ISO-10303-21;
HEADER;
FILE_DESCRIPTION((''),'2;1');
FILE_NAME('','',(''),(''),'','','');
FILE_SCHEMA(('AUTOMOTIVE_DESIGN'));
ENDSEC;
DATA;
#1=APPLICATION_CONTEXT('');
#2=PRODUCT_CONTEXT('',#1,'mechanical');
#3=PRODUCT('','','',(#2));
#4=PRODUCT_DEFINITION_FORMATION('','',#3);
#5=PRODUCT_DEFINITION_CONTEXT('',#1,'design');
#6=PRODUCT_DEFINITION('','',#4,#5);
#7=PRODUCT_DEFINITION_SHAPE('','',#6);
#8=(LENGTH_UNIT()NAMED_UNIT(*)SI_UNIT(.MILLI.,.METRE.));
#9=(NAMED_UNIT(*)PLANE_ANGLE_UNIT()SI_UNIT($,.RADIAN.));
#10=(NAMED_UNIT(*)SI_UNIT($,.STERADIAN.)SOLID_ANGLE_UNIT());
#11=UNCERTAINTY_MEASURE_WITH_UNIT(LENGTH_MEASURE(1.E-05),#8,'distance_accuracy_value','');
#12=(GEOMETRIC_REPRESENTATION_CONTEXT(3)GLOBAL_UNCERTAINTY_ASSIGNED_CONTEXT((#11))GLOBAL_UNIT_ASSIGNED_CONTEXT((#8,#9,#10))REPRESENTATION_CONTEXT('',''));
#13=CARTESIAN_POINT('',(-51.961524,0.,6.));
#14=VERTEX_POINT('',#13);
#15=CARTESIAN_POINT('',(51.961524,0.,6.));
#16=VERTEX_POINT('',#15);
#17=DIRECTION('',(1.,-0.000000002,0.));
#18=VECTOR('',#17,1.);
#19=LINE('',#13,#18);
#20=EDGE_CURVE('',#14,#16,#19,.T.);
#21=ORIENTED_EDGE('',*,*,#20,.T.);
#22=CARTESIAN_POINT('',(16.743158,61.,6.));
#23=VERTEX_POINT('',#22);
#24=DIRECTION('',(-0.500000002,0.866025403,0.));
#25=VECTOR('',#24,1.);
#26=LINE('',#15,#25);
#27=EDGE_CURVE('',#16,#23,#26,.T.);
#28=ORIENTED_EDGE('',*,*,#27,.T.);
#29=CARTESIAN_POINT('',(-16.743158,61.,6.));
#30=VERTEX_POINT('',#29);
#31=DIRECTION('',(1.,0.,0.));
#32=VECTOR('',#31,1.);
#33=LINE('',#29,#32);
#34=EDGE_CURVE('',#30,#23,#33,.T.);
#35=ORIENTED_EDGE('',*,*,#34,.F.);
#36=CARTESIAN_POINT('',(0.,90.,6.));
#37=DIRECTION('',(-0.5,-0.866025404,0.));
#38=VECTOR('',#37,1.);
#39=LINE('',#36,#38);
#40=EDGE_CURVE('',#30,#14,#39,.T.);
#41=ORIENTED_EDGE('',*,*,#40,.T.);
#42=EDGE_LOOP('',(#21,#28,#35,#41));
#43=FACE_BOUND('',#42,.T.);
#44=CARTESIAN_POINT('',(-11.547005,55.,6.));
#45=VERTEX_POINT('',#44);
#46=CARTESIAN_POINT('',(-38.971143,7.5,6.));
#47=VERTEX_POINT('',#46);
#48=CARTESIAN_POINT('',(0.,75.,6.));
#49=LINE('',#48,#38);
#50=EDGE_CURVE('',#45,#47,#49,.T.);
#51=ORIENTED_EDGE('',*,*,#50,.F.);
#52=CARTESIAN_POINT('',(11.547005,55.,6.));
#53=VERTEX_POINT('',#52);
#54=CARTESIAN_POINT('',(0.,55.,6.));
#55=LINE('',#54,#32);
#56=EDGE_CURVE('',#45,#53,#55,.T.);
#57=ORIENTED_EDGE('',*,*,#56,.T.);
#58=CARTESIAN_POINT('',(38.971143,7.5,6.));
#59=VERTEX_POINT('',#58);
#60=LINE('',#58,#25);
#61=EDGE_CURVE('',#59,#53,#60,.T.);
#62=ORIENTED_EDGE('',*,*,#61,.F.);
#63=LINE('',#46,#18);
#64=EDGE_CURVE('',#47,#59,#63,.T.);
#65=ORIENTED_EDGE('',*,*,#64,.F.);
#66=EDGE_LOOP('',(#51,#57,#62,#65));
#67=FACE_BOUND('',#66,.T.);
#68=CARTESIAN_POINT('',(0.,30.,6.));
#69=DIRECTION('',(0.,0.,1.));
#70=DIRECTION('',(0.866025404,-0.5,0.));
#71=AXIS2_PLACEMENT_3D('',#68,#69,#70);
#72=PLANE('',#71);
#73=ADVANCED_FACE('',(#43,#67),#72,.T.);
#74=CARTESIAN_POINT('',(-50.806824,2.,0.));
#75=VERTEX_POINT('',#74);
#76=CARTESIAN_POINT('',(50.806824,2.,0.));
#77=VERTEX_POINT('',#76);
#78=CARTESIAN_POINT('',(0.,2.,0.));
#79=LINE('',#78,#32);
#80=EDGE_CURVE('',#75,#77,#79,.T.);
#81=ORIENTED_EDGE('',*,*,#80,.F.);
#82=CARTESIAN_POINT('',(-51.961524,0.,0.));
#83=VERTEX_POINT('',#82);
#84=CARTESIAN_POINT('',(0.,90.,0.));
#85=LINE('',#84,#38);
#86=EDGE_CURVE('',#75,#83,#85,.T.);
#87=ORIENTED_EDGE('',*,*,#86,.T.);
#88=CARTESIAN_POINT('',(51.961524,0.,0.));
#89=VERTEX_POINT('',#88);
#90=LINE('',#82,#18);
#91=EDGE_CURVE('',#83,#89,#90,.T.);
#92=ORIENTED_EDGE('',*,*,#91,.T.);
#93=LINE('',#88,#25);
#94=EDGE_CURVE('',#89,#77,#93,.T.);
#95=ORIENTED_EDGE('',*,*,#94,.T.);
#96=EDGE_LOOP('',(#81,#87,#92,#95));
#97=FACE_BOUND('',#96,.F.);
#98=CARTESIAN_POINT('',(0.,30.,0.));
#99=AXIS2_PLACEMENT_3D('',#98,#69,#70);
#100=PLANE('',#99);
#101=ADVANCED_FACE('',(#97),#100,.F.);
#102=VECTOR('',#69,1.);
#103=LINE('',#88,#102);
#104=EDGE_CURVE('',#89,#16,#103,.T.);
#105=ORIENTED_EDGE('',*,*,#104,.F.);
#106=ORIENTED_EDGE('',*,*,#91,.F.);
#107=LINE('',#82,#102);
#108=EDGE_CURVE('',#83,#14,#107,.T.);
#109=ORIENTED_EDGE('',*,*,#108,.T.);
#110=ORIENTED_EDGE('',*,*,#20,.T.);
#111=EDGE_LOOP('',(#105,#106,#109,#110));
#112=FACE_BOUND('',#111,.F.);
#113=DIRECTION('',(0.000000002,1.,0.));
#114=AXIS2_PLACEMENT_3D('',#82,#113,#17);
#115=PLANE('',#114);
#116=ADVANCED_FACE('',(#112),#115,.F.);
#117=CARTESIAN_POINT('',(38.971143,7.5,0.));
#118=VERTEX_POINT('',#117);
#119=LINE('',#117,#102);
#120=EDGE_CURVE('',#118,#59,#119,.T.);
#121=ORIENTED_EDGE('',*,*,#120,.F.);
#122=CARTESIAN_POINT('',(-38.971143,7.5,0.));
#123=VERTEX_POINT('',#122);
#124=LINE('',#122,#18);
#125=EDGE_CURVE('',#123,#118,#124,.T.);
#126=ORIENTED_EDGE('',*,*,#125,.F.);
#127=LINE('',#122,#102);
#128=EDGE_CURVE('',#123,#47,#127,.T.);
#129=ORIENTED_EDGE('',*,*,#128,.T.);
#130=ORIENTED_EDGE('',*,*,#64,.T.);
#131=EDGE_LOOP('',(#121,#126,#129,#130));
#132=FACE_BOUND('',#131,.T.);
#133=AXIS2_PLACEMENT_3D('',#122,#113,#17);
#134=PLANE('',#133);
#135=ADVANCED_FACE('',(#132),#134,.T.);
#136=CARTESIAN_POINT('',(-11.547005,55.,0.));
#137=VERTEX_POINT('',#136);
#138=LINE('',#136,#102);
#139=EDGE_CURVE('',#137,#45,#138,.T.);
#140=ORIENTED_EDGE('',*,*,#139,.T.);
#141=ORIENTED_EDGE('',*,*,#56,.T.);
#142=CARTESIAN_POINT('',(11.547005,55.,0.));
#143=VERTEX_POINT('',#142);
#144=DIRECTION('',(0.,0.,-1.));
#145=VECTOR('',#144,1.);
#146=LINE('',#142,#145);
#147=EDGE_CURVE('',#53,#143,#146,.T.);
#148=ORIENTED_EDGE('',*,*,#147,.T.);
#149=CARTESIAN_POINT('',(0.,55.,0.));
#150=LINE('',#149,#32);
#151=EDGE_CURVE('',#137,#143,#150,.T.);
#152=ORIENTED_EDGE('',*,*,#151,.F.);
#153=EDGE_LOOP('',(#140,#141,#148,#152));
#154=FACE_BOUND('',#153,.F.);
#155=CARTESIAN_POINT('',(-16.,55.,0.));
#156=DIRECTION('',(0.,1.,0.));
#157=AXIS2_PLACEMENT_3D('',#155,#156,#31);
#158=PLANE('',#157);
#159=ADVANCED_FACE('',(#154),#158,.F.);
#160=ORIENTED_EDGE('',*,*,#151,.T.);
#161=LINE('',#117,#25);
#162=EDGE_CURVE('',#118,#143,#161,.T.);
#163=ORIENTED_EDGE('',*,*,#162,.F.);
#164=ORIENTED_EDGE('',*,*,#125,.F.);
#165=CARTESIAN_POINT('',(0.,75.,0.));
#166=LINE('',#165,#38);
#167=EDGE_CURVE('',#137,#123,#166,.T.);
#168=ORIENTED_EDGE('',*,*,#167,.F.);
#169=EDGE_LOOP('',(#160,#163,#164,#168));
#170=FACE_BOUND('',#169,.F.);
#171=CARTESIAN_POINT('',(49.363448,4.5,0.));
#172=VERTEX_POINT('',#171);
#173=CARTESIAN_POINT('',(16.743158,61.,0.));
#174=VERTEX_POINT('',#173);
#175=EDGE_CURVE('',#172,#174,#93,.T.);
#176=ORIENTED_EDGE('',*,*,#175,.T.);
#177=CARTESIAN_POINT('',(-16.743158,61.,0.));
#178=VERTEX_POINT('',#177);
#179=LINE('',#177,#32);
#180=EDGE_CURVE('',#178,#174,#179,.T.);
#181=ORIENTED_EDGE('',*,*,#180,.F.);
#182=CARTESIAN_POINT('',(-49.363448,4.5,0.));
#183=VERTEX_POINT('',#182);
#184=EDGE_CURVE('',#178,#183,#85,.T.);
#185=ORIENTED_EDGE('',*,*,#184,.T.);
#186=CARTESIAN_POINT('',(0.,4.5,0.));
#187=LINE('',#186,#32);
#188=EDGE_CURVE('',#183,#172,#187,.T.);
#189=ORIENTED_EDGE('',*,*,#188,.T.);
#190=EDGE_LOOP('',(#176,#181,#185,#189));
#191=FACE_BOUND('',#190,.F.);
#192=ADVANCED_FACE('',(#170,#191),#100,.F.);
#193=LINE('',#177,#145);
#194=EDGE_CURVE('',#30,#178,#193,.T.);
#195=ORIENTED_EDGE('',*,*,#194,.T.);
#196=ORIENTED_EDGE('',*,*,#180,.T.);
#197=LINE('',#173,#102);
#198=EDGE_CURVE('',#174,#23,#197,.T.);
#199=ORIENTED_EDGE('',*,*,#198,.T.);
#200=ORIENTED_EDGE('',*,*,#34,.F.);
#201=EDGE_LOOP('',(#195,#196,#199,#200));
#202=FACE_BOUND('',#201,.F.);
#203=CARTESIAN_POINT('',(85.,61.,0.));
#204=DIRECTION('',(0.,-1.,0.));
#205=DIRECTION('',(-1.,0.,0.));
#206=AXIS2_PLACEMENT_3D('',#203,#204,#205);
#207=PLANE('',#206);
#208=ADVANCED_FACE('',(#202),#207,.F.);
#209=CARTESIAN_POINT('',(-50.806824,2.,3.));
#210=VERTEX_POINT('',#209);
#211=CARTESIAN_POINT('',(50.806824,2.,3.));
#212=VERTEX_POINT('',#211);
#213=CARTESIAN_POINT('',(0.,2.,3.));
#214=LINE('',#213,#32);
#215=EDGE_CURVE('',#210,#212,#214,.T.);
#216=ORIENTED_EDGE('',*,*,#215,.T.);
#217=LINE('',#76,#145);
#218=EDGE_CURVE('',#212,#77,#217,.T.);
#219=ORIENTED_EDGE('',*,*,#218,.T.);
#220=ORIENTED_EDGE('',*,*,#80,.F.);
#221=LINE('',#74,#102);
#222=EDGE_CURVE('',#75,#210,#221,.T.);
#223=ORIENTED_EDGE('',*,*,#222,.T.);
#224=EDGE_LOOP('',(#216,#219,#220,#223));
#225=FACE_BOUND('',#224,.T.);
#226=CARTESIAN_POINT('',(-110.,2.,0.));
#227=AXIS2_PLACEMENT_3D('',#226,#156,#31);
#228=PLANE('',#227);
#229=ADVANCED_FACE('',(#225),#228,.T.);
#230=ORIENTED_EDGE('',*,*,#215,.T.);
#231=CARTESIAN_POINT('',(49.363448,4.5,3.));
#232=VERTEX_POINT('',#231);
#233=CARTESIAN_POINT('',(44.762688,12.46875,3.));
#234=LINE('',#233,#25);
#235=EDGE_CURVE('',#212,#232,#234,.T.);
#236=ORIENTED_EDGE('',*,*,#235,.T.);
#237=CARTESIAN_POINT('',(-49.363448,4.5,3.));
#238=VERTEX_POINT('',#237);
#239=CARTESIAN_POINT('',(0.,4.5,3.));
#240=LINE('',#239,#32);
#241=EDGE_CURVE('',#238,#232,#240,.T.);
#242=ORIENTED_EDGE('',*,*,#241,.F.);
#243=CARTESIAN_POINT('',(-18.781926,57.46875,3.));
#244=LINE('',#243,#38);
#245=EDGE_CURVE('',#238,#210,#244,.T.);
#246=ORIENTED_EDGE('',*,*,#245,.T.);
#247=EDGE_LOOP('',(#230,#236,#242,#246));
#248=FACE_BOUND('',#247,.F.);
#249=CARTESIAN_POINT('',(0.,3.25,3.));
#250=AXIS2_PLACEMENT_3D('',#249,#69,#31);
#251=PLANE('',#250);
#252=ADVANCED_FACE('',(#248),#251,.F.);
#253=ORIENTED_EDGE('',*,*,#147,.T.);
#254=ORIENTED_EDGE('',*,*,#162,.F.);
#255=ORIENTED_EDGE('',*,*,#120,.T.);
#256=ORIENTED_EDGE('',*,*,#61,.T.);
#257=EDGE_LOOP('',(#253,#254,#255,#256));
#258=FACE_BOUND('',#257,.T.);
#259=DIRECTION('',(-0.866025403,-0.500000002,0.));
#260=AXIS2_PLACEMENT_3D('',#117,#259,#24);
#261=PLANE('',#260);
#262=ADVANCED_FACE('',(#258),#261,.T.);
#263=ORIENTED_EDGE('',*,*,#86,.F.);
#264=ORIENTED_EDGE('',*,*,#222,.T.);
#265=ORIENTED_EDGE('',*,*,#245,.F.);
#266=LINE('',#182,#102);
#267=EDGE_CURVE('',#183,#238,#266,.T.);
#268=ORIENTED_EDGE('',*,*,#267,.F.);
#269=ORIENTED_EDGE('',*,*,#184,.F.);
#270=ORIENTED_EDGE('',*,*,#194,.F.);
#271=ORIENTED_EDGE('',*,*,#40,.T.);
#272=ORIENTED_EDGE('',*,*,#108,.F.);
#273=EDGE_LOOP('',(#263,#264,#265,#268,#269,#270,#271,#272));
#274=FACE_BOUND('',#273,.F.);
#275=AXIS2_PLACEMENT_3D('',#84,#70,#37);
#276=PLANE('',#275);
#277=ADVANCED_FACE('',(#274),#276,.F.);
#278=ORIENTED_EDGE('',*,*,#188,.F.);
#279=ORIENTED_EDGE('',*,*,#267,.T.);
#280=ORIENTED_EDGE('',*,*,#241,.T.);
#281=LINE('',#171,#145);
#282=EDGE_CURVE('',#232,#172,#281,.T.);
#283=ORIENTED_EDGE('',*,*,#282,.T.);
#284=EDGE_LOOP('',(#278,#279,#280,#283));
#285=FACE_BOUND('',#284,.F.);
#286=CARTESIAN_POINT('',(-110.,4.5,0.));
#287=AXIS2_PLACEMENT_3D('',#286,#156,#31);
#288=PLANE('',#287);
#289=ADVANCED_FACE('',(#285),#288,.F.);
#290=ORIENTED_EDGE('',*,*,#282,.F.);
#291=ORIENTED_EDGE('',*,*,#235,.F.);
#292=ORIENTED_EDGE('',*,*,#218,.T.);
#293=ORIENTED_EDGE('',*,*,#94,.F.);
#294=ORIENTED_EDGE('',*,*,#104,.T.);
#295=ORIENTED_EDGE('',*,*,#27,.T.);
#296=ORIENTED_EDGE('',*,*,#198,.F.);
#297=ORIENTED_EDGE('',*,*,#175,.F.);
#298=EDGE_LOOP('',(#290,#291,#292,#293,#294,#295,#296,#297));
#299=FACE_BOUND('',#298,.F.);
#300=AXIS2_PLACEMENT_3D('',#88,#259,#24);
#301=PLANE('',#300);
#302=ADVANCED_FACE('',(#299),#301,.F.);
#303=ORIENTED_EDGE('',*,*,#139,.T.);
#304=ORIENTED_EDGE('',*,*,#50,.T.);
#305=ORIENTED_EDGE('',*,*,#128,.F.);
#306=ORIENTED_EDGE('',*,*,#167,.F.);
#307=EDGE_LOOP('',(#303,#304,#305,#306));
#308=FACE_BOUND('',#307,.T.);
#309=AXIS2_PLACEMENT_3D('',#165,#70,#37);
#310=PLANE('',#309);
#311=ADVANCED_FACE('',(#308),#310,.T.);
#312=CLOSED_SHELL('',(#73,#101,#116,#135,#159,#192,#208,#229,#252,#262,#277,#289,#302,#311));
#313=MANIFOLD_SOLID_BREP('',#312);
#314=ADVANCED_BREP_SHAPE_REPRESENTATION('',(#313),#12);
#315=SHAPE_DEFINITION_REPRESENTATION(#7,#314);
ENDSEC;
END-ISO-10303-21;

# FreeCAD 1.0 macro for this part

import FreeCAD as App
import Part
import Sketcher
from FreeCAD import Vector
Q = App.Units.Quantity


def add_polygon(sketch, points):
    """Adds a closed chain of lines whose ends are joined by coincident constraints."""
    first, n = sketch.GeometryCount, len(points)
    for a, b in zip(points, points[1:] + points[:1]):
        sketch.addGeometry(Part.LineSegment(App.Vector(*a, 0), App.Vector(*b, 0)), False)
    for i in range(n):
        sketch.addConstraint(Sketcher.Constraint("Coincident", first + i, 2, first + (i + 1) % n, 1))

doc = App.newDocument("Part")
body = doc.addObject("PartDesign::Body", "Body")

# Sketch on XY plane
sketch1 = doc.addObject("Sketcher::SketchObject", "Sketch")
body.addObject(sketch1)
sketch1.AttachmentSupport = (doc.XY_Plane, [""])
sketch1.MapMode = "FlatFace"
add_polygon(sketch1, [(-110, 4.5), (-110, 2), (110, 2), (110, 4.5)])  # lines 0-3
sketch1.addConstraint(Sketcher.Constraint("Vertical", 0))
sketch1.addConstraint(Sketcher.Constraint("Horizontal", 1))
sketch1.addConstraint(Sketcher.Constraint("Vertical", 2))
sketch1.addConstraint(Sketcher.Constraint("Horizontal", 3))
sketch1.addConstraint(Sketcher.Constraint("DistanceX", 1, 1, 1, 2, Q("220 mm")))
sketch1.addConstraint(Sketcher.Constraint("DistanceY", 0, 2, 0, 1, Q("2.5 mm")))
sketch1.addConstraint(Sketcher.Constraint("DistanceX", 0, 2, -1, 1, Q("110 mm")))
sketch1.addConstraint(Sketcher.Constraint("DistanceY", -1, 1, 0, 2, Q("2 mm")))
pad1 = doc.addObject("PartDesign::Pad", "Pad")
body.addObject(pad1)
pad1.Profile = sketch1
pad1.Length = 3
body2 = doc.addObject("PartDesign::Body", "Body001")

# Sketch on XY plane
sketch2 = doc.addObject("Sketcher::SketchObject", "Sketch001")
body2.addObject(sketch2)
sketch2.AttachmentSupport = (doc.getObject("XY_Plane001"), [""])
sketch2.MapMode = "FlatFace"
add_polygon(sketch2, [(-95, 0), (95, 0), (85, 61), (-85, 61)])  # lines 0-3
sketch2.addConstraint(Sketcher.Constraint("Horizontal", 0))
sketch2.addConstraint(Sketcher.Constraint("Horizontal", 2))
sketch2.addConstraint(Sketcher.Constraint("Symmetric", 0, 2, 3, 2, -1, 1))
sketch2.addConstraint(Sketcher.Constraint("Equal", 1, 3))
sketch2.addConstraint(Sketcher.Constraint("DistanceX", 0, 1, 0, 2, Q("190 mm")))
sketch2.addConstraint(Sketcher.Constraint("DistanceX", 2, 2, 2, 1, Q("170 mm")))
sketch2.addConstraint(Sketcher.Constraint("DistanceY", -1, 1, 1, 2, Q("61 mm")))
pad2 = doc.addObject("PartDesign::Pad", "Pad001")
body2.addObject(pad2)
pad2.Profile = sketch2
pad2.Length = 10
body3 = doc.addObject("PartDesign::Body", "Body002")

# Sketch on XY plane
sketch3 = doc.addObject("Sketcher::SketchObject", "Sketch002")
body3.addObject(sketch3)
sketch3.AttachmentSupport = (doc.getObject("XY_Plane002"), [""])
sketch3.MapMode = "FlatFace"
add_polygon(sketch3, [(-110, 98), (-110, -15), (110, -15), (110, 98)])  # lines 0-3
sketch3.addConstraint(Sketcher.Constraint("Vertical", 0))
sketch3.addConstraint(Sketcher.Constraint("Horizontal", 1))
sketch3.addConstraint(Sketcher.Constraint("Vertical", 2))
sketch3.addConstraint(Sketcher.Constraint("Horizontal", 3))
sketch3.addConstraint(Sketcher.Constraint("DistanceX", 1, 1, 1, 2, Q("220 mm")))
sketch3.addConstraint(Sketcher.Constraint("DistanceY", 0, 2, 0, 1, Q("113 mm")))
sketch3.addConstraint(Sketcher.Constraint("DistanceX", 0, 2, -1, 1, Q("110 mm")))
sketch3.addConstraint(Sketcher.Constraint("DistanceY", 0, 2, -1, 1, Q("15 mm")))
pad3 = doc.addObject("PartDesign::Pad", "Pad002")
body3.addObject(pad3)
pad3.Profile = sketch3
pad3.Length = 8
doc.recompute()

boolean = doc.addObject("PartDesign::Boolean", "Boolean")
body3.addObject(boolean)
boolean.Type = "Cut"
boolean.addObjects([body2])
body4 = doc.addObject("PartDesign::Body", "Body003")

# Sketch on XY plane
sketch4 = doc.addObject("Sketcher::SketchObject", "Sketch003")
body4.addObject(sketch4)
sketch4.AttachmentSupport = (doc.getObject("XY_Plane003"), [""])
sketch4.MapMode = "FlatFace"
add_polygon(sketch4, [(-16, 61), (-16, 55), (16, 55), (16, 61)])  # lines 0-3
sketch4.addConstraint(Sketcher.Constraint("Vertical", 0))
sketch4.addConstraint(Sketcher.Constraint("Horizontal", 1))
sketch4.addConstraint(Sketcher.Constraint("Vertical", 2))
sketch4.addConstraint(Sketcher.Constraint("Horizontal", 3))
sketch4.addConstraint(Sketcher.Constraint("DistanceX", 1, 1, 1, 2, Q("32 mm")))
sketch4.addConstraint(Sketcher.Constraint("DistanceY", 0, 2, 0, 1, Q("6 mm")))
sketch4.addConstraint(Sketcher.Constraint("DistanceX", 0, 2, -1, 1, Q("16 mm")))
sketch4.addConstraint(Sketcher.Constraint("DistanceY", -1, 1, 0, 2, Q("55 mm")))
pad4 = doc.addObject("PartDesign::Pad", "Pad003")
body4.addObject(pad4)
pad4.Profile = sketch4
pad4.Length = 6
body5 = doc.addObject("PartDesign::Body", "Body004")

# Sketch on XY plane
sketch5 = doc.addObject("Sketcher::SketchObject", "Sketch004")
body5.addObject(sketch5)
sketch5.AttachmentSupport = (doc.getObject("XY_Plane004"), [""])
sketch5.MapMode = "FlatFace"
add_polygon(sketch5, [(45, 0), (-22.5, 38.971143), (-22.5, -38.971143)])  # lines 0-2
sketch5.addConstraint(Sketcher.Constraint("Vertical", 1))
sketch5.addConstraint(Sketcher.Constraint("PointOnObject", 2, 2, -1))
sketch5.addConstraint(Sketcher.Constraint("Equal", 0, 2))
sketch5.addConstraint(Sketcher.Constraint("Angle", 0, Q("150 deg")))
sketch5.addConstraint(Sketcher.Constraint("DistanceX", -1, 1, 2, 2, Q("45 mm")))
sketch5.addConstraint(Sketcher.Constraint("DistanceX", 0, 2, -1, 1, Q("22.5 mm")))
pad5 = doc.addObject("PartDesign::Pad", "Pad004")
body5.addObject(pad5)
pad5.Profile = sketch5
pad5.Length = 6
body6 = doc.addObject("PartDesign::Body", "Body005")
doc.recompute()

body5.Placement = App.Placement(Vector(0, 23, 0), App.Rotation(Vector(0, 0, -1), 30))
boolean2 = doc.addObject("PartDesign::Boolean", "Boolean001")
body6.addObject(boolean2)
boolean2.Type = "Fuse"
boolean2.addObjects([body5])
body7 = doc.addObject("PartDesign::Body", "Body006")

# Sketch on XY plane
sketch6 = doc.addObject("Sketcher::SketchObject", "Sketch005")
body7.addObject(sketch6)
sketch6.AttachmentSupport = (doc.getObject("XY_Plane006"), [""])
sketch6.MapMode = "FlatFace"
add_polygon(sketch6, [(60, 0), (-30, 51.961524), (-30, -51.961524)])  # lines 0-2
sketch6.addConstraint(Sketcher.Constraint("Vertical", 1))
sketch6.addConstraint(Sketcher.Constraint("PointOnObject", 2, 2, -1))
sketch6.addConstraint(Sketcher.Constraint("Equal", 0, 2))
sketch6.addConstraint(Sketcher.Constraint("Angle", 0, Q("150 deg")))
sketch6.addConstraint(Sketcher.Constraint("DistanceX", 0, 2, -1, 1, Q("30 mm")))
sketch6.addConstraint(Sketcher.Constraint("DistanceX", -1, 1, 2, 2, Q("60 mm")))
pad6 = doc.addObject("PartDesign::Pad", "Pad005")
body7.addObject(pad6)
pad6.Profile = sketch6
pad6.Length = 6
body8 = doc.addObject("PartDesign::Body", "Body007")
doc.recompute()

body7.Placement = App.Placement(Vector(0, 23, 0), App.Rotation(Vector(0, 0, -1), 30))
boolean3 = doc.addObject("PartDesign::Boolean", "Boolean002")
body8.addObject(boolean3)
boolean3.Type = "Fuse"
boolean3.addObjects([body7])
doc.recompute()

boolean4 = doc.addObject("PartDesign::Boolean", "Boolean003")
body8.addObject(boolean4)
boolean4.Type = "Cut"
boolean4.addObjects([body6])
body9 = doc.addObject("PartDesign::Body", "Body008")
doc.recompute()

body8.Placement = App.Placement(Vector(0, 7, 0), App.Rotation(Vector(0, 0, 1), 0))
boolean5 = doc.addObject("PartDesign::Boolean", "Boolean004")
body9.addObject(boolean5)
boolean5.Type = "Fuse"
boolean5.addObjects([body8])
doc.recompute()

boolean6 = doc.addObject("PartDesign::Boolean", "Boolean005")
body9.addObject(boolean6)
boolean6.Type = "Fuse"
boolean6.addObjects([body4])
doc.recompute()

boolean7 = doc.addObject("PartDesign::Boolean", "Boolean006")
body9.addObject(boolean7)
boolean7.Type = "Cut"
boolean7.addObjects([body3])
doc.recompute()

boolean8 = doc.addObject("PartDesign::Boolean", "Boolean007")
body9.addObject(boolean8)
boolean8.Type = "Cut"
boolean8.addObjects([body])

doc.recompute()
